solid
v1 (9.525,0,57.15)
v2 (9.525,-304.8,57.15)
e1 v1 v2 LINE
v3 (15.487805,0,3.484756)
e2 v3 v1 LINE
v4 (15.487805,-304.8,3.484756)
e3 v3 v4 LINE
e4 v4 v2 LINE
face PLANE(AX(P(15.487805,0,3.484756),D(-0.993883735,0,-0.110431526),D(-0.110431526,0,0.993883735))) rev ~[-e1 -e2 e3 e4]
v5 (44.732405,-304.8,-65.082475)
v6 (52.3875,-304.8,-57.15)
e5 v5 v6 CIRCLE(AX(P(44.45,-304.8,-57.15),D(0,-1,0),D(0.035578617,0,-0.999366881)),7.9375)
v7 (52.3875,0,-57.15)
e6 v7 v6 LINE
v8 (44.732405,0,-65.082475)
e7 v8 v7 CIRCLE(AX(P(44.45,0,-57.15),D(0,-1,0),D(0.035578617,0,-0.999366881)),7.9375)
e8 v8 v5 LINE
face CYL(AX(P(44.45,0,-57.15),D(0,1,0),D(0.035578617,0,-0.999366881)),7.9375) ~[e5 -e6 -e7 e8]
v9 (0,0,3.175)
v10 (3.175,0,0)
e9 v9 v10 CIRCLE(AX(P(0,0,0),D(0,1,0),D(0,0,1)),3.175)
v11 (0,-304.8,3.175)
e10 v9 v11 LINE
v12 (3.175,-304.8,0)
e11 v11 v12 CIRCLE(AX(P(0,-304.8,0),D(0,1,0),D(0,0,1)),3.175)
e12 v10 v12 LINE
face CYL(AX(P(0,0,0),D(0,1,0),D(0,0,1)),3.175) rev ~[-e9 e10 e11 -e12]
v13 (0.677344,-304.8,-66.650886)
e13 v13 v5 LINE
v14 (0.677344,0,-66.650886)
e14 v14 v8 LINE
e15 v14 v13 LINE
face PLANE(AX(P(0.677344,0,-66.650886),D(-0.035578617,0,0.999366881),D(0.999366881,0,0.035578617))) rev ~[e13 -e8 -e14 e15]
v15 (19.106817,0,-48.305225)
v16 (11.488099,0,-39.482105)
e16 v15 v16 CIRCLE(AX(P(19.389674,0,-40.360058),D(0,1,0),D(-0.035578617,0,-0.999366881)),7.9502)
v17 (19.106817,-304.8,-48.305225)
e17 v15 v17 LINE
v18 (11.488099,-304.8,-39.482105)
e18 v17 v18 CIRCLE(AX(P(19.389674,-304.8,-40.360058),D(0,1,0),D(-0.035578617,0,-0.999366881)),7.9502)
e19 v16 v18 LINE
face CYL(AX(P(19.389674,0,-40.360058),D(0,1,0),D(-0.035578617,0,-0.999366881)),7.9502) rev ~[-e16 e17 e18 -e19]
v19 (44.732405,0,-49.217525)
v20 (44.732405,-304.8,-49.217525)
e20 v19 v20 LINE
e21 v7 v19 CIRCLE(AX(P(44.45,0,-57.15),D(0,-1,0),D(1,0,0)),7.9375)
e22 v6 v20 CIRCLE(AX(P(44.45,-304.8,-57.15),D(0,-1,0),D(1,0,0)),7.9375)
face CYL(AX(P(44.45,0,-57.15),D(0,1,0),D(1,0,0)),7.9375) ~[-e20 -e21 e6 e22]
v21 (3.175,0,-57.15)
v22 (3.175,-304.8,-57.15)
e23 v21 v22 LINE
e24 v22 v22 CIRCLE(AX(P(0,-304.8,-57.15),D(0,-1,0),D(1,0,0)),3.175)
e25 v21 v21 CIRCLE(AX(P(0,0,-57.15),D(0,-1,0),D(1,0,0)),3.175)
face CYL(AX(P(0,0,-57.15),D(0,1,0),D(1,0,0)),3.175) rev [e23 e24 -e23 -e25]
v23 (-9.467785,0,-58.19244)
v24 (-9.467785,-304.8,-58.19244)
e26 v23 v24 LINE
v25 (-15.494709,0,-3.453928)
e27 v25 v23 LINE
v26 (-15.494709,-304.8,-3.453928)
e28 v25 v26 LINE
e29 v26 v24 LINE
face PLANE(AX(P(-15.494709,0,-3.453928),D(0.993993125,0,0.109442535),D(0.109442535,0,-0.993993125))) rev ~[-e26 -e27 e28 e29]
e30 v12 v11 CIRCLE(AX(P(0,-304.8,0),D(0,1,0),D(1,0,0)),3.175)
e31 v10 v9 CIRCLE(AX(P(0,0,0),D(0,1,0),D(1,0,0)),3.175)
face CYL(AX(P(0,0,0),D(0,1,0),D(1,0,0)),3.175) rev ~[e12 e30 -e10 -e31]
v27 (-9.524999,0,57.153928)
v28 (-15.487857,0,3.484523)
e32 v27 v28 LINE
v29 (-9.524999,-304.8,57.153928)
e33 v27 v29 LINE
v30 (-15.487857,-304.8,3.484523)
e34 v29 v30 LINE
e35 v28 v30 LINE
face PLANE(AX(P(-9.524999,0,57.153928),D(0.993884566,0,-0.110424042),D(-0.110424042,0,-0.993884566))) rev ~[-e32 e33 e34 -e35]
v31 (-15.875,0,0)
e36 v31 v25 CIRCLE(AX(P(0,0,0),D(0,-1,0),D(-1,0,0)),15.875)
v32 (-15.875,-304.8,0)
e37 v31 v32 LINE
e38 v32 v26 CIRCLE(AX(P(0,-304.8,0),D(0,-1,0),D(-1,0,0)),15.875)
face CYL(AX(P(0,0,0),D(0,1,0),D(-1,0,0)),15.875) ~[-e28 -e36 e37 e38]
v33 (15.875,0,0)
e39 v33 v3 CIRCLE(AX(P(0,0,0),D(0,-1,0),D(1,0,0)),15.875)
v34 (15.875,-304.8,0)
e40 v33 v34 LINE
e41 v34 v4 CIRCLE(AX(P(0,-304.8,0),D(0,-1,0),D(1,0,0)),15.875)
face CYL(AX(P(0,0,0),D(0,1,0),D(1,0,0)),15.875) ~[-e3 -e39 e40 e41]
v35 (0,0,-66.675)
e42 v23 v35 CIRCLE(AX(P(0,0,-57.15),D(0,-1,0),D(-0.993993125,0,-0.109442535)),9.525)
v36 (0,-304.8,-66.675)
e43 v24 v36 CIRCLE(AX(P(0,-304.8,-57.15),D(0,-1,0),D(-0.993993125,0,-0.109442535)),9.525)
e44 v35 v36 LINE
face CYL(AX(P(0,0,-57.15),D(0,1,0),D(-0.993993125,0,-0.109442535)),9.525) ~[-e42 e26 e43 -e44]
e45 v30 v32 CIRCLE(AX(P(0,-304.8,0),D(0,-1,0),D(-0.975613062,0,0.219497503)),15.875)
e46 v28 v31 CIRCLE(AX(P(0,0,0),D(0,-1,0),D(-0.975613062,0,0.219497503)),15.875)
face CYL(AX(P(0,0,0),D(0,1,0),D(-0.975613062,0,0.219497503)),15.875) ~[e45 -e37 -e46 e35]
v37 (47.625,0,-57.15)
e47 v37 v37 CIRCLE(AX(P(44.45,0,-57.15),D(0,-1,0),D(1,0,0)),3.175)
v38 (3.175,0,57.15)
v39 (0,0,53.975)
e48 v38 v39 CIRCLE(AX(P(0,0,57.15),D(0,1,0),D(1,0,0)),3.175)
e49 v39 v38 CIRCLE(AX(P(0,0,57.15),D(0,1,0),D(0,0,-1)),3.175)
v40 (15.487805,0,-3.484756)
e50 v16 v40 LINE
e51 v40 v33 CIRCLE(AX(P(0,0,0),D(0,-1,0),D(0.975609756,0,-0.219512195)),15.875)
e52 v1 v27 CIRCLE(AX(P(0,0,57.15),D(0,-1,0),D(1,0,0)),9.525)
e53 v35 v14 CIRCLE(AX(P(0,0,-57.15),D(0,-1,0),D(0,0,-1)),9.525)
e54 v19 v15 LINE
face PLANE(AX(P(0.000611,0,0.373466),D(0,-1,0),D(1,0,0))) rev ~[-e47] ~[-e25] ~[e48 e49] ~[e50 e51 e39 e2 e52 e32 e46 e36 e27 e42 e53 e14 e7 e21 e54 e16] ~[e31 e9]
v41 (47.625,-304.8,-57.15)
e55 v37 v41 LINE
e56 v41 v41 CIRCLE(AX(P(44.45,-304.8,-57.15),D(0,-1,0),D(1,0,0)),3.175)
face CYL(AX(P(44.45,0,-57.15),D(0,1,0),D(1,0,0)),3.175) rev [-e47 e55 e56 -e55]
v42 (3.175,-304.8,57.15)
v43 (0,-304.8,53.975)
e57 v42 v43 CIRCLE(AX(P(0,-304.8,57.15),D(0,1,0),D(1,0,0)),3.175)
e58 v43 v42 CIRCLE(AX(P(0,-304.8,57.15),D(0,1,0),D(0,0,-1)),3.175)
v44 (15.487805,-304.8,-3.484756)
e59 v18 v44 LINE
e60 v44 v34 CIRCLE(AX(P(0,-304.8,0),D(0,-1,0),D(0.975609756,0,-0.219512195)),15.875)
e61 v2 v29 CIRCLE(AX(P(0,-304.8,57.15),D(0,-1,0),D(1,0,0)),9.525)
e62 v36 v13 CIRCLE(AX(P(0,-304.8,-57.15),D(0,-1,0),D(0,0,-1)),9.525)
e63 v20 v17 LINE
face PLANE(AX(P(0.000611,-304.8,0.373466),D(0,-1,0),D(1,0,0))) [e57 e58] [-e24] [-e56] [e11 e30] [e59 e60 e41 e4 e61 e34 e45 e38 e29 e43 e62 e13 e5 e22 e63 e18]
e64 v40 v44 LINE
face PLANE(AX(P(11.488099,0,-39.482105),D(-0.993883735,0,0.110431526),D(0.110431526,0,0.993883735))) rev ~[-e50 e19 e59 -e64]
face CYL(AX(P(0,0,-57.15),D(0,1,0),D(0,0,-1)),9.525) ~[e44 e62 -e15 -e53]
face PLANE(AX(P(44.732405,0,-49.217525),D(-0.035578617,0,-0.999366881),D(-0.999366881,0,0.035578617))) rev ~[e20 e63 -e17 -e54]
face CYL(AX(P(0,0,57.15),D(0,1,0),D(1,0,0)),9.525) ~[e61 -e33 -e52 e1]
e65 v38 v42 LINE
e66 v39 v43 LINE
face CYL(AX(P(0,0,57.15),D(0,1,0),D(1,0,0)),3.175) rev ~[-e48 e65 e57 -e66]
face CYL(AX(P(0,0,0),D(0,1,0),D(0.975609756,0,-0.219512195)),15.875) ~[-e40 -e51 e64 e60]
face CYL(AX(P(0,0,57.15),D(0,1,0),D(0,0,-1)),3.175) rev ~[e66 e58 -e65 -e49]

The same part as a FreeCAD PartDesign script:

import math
import FreeCAD as App
import Part
import Sketcher
from FreeCAD import Vector
Q = App.Units.Quantity

doc = App.newDocument("Part")
body = doc.addObject("PartDesign::Body", "Body")

sketch1 = body.newObject("Sketcher::SketchObject", "Sketch")
sketch1.AttachmentSupport = (doc.getObject("XZ_Plane"), [""])
sketch1.MapMode = "FlatFace"
sketch1.addGeometry([
    Part.LineSegment(Vector(-9.524999, 57.153928, 0), Vector(-15.487857, 3.484523, 0)),
    Part.ArcOfCircle(Part.Circle(Vector(0, 0, 0), Vector(0, 0, 1), 15.875), math.radians(167.320479), math.radians(180)),
    Part.ArcOfCircle(Part.Circle(Vector(0, 0, 0), Vector(0, 0, 1), 15.875), math.radians(180), math.radians(192.566362)),
    Part.LineSegment(Vector(-15.494709, -3.453928, 0), Vector(-9.467785, -58.19244, 0)),
    Part.ArcOfCircle(Part.Circle(Vector(0, -57.15, 0), Vector(0, 0, 1), 9.525), math.radians(-173.716819), math.radians(-90)),
    Part.ArcOfCircle(Part.Circle(Vector(0, -57.15, 0), Vector(0, 0, 1), 9.525), math.radians(-90), math.radians(-85.92213)),
    Part.LineSegment(Vector(0.677344, -66.650886, 0), Vector(44.732405, -65.082475, 0)),
    Part.ArcOfCircle(Part.Circle(Vector(44.45, -57.15, 0), Vector(0, 0, 1), 7.9375), math.radians(-87.961065), math.radians(0)),
    Part.ArcOfCircle(Part.Circle(Vector(44.45, -57.15, 0), Vector(0, 0, 1), 7.9375), math.radians(0), math.radians(87.961065)),
    Part.LineSegment(Vector(44.732405, -49.217525, 0), Vector(19.106817, -48.305225, 0)),
    Part.ArcOfCircle(Part.Circle(Vector(19.389674, -40.360058, 0), Vector(0, 0, 1), 7.9502), math.radians(173.659808), math.radians(267.961065)),
    Part.LineSegment(Vector(11.488099, -39.482105, 0), Vector(15.487805, -3.484756, 0)),
    Part.ArcOfCircle(Part.Circle(Vector(0, 0, 0), Vector(0, 0, 1), 15.875), math.radians(-12.680383), math.radians(0)),
    Part.ArcOfCircle(Part.Circle(Vector(0, 0, 0), Vector(0, 0, 1), 15.875), math.radians(0), math.radians(12.680383)),
    Part.LineSegment(Vector(15.487805, 3.484756, 0), Vector(9.525, 57.15, 0)),
    Part.ArcOfCircle(Part.Circle(Vector(0, 57.15, 0), Vector(0, 0, 1), 9.525), math.radians(0), math.radians(179.97637)),
    Part.Circle(Vector(0, -57.15, 0), Vector(0, 0, 1), 3.175),
    Part.ArcOfCircle(Part.Circle(Vector(0, 0, 0), Vector(0, 0, 1), 3.175), math.radians(0), math.radians(90)),
    Part.ArcOfCircle(Part.Circle(Vector(0, 0, 0), Vector(0, 0, 1), 3.175), math.radians(90), math.radians(360)),
    Part.Circle(Vector(44.45, -57.15, 0), Vector(0, 0, 1), 3.175),
    Part.ArcOfCircle(Part.Circle(Vector(0, 57.15, 0), Vector(0, 0, 1), 3.175), math.radians(0), math.radians(270)),
    Part.ArcOfCircle(Part.Circle(Vector(0, 57.15, 0), Vector(0, 0, 1), 3.175), math.radians(-90), math.radians(0)),
], False)
sketch1.addConstraint([
    Sketcher.Constraint("Coincident", 0, 2, 1, 1),
    Sketcher.Constraint("Coincident", 1, 2, 2, 1),
    Sketcher.Constraint("Coincident", 2, 2, 3, 1),
    Sketcher.Constraint("Coincident", 3, 2, 4, 1),
    Sketcher.Constraint("Coincident", 4, 2, 5, 1),
    Sketcher.Constraint("Coincident", 5, 2, 6, 1),
    Sketcher.Constraint("Coincident", 6, 2, 7, 1),
    Sketcher.Constraint("Coincident", 7, 2, 8, 1),
    Sketcher.Constraint("Coincident", 8, 2, 9, 1),
    Sketcher.Constraint("Coincident", 9, 2, 10, 2),
    Sketcher.Constraint("Coincident", 10, 1, 11, 1),
    Sketcher.Constraint("Coincident", 11, 2, 12, 1),
    Sketcher.Constraint("Coincident", 12, 2, 13, 1),
    Sketcher.Constraint("Coincident", 13, 2, 14, 1),
    Sketcher.Constraint("Coincident", 14, 2, 15, 1),
    Sketcher.Constraint("Coincident", 15, 2, 0, 1),
    Sketcher.Constraint("Coincident", 17, 1, 18, 2),
    Sketcher.Constraint("Coincident", 18, 1, 17, 2),
    Sketcher.Constraint("Coincident", 20, 1, 21, 2),
    Sketcher.Constraint("Coincident", 21, 1, 20, 2),
    Sketcher.Constraint("Coincident", 1, 3, -1, 1),
    Sketcher.Constraint("Coincident", 2, 3, -1, 1),
    Sketcher.Constraint("Coincident", 12, 3, -1, 1),
    Sketcher.Constraint("Coincident", 13, 3, -1, 1),
    Sketcher.Constraint("Coincident", 17, 3, -1, 1),
    Sketcher.Constraint("Coincident", 5, 3, 4, 3),
    Sketcher.Constraint("Coincident", 8, 3, 7, 3),
    Sketcher.Constraint("Coincident", 16, 3, 4, 3),
    Sketcher.Constraint("Coincident", 19, 3, 7, 3),
    Sketcher.Constraint("Coincident", 20, 3, 15, 3),
    Sketcher.Constraint("PointOnObject", 4, 3, -2),
    Sketcher.Constraint("PointOnObject", 15, 3, -2),
    Sketcher.Constraint("PointOnObject", 21, 3, -2),
    Sketcher.Constraint("PointOnObject", 1, 2, -1),
    Sketcher.Constraint("PointOnObject", 4, 2, -2),
    Sketcher.Constraint("PointOnObject", 12, 2, -1),
    Sketcher.Constraint("PointOnObject", 17, 1, -1),
    Sketcher.Constraint("PointOnObject", 18, 1, -2),
    Sketcher.Constraint("PointOnObject", 21, 1, -2),
    Sketcher.Constraint("Diameter", 16, Q("0.25 in")),
    Sketcher.Constraint("Diameter", 19, Q("0.25 in")),
    Sketcher.Constraint("Radius", 1, Q("0.625 in")),
    Sketcher.Constraint("Radius", 4, Q("0.375 in")),
    Sketcher.Constraint("Radius", 7, Q("0.3125 in")),
    Sketcher.Constraint("Radius", 10, Q("0.313 in")),
    Sketcher.Constraint("Radius", 12, Q("0.625 in")),
    Sketcher.Constraint("Radius", 15, Q("0.375 in")),
    Sketcher.Constraint("Radius", 17, Q("0.125 in")),
    Sketcher.Constraint("Radius", 18, Q("0.125 in")),
    Sketcher.Constraint("Radius", 20, Q("0.125 in")),
    Sketcher.Constraint("DistanceY", 4, 3, -1, 1, Q("2.25 in")),
    Sketcher.Constraint("DistanceX", -1, 1, 7, 3, Q("1.75 in")),
    Sketcher.Constraint("DistanceY", 7, 3, -1, 1, Q("2.25 in")),
    Sketcher.Constraint("DistanceY", -1, 1, 15, 3, Q("2.25 in")),
    Sketcher.Constraint("DistanceY", 7, 2, -1, 1, Q("2.25 in")),
    Sketcher.Constraint("DistanceY", -1, 1, 14, 2, Q("2.25 in")),
    Sketcher.Constraint("DistanceY", -1, 1, 20, 1, Q("2.25 in")),
    Sketcher.Constraint("DistanceX", -1, 1, 10, 1, 11.488099),
    Sketcher.Constraint("DistanceY", 8, 2, 9, 2, 0.912301),
    Sketcher.Constraint("Distance", 6, 44.082972),
    Sketcher.Constraint("DistanceY", 10, 3, -1, 1, 40.360058),
    Sketcher.Constraint("DistanceX", 2, 2, -1, 1, 15.494709),
    Sketcher.Constraint("DistanceY", 3, 2, -1, 1, 58.19244),
    Sketcher.Constraint("DistanceY", -1, 1, 15, 2, 57.153928),
    Sketcher.Constraint("DistanceX", 2, 2, 0, 2, 0.006852),
    Sketcher.Constraint("DistanceX", 3, 2, 10, 3, 28.857458),
    Sketcher.Constraint("DistanceX", 3, 2, 5, 2, 10.145128),
    Sketcher.Constraint("DistanceY", 6, 2, 8, 2, 15.864949),
    Sketcher.Constraint("Distance", 11, 36.218874),
    Sketcher.Constraint("Distance", 14, 53.995495),
])
pad1 = body.newObject("PartDesign::Pad", "Pad")
pad1.Profile = sketch1
pad1.Length = Q("12 in")

doc.recompute()
